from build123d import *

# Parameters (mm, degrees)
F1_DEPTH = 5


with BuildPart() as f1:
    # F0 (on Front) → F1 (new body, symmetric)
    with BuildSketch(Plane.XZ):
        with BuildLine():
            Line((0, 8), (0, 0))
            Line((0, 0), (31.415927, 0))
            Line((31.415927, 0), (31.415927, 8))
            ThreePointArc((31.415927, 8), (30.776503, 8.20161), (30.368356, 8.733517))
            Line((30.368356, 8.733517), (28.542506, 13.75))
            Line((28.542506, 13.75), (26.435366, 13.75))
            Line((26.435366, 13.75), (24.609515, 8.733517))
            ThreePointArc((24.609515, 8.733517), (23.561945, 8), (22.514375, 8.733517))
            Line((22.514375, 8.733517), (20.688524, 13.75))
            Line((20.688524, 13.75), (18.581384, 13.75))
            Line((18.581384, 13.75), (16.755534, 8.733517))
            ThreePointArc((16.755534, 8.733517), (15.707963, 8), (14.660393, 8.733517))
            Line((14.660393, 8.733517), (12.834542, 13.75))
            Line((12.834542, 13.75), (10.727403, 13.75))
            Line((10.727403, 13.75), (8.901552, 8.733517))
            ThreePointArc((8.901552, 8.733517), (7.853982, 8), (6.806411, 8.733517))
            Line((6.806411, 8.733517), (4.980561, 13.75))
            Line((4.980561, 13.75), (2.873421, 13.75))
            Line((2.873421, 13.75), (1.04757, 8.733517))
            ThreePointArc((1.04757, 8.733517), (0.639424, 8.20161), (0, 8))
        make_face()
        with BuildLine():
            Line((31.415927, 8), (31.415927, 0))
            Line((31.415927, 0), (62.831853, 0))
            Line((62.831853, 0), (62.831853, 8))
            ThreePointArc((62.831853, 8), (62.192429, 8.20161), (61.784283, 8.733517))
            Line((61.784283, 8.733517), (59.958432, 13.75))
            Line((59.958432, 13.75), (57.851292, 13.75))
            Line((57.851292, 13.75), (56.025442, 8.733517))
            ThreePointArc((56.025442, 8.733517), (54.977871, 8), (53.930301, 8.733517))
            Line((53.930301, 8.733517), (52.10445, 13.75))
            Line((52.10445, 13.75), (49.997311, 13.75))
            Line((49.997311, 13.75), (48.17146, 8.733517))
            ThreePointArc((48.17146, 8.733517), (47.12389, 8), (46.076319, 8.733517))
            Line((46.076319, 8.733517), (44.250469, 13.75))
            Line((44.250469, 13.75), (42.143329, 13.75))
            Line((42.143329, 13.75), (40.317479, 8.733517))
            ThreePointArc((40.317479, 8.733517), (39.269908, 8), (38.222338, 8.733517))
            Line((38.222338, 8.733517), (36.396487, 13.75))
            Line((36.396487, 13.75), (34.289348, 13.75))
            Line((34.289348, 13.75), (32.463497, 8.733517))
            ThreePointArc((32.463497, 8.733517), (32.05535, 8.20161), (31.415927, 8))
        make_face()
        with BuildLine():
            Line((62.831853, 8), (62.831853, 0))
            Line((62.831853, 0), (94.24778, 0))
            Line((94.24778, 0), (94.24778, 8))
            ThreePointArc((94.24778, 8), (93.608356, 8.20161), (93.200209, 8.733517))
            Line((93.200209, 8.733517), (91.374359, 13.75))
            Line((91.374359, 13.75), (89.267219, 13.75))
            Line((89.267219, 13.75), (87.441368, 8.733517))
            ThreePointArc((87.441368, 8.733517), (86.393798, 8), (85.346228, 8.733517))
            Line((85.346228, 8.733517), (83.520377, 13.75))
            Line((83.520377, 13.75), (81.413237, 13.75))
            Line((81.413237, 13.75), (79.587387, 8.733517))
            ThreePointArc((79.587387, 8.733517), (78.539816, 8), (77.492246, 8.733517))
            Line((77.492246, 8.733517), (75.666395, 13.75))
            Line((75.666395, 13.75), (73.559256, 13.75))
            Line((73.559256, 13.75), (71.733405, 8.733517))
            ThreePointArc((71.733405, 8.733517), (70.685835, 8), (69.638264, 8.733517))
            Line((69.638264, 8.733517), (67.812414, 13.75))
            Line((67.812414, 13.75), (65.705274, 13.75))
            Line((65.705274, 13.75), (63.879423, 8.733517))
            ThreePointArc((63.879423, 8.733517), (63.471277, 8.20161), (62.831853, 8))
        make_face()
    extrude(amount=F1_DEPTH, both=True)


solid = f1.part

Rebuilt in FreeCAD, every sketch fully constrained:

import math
import FreeCAD as App
import Part
import Sketcher
from FreeCAD import Vector
Q = App.Units.Quantity

doc = App.newDocument("Part")
body = doc.addObject("PartDesign::Body", "Body")

# Sketch on XZ plane
sketch1 = doc.addObject("Sketcher::SketchObject", "Sketch")
body.addObject(sketch1)
sketch1.AttachmentSupport = (doc.XZ_Plane, [""])
sketch1.MapMode = "FlatFace"
sketch1.addGeometry(Part.LineSegment(Vector(0, 8, 0), Vector(0, 0, 0)), False)
sketch1.addGeometry(Part.LineSegment(Vector(0, 0, 0), Vector(94.24778, 0, 0)), False)
sketch1.addGeometry(Part.LineSegment(Vector(94.24778, 0, 0), Vector(94.24778, 8, 0)), False)
sketch1.addGeometry(Part.ArcOfCircle(Part.Circle(Vector(94.247781, 9.114803, 0), Vector(0, 0, 1), 1.114803), math.radians(-159.999937), math.radians(-90.000055)), False)
sketch1.addGeometry(Part.LineSegment(Vector(93.200209, 8.733517, 0), Vector(91.374359, 13.75, 0)), False)
sketch1.addGeometry(Part.LineSegment(Vector(91.374359, 13.75, 0), Vector(89.267219, 13.75, 0)), False)
sketch1.addGeometry(Part.LineSegment(Vector(89.267219, 13.75, 0), Vector(87.441368, 8.733517, 0)), False)
sketch1.addGeometry(Part.ArcOfCircle(Part.Circle(Vector(86.393798, 9.1148, 0), Vector(0, 0, 1), 1.1148), math.radians(-160.000043), math.radians(-19.999957)), False)
sketch1.addGeometry(Part.LineSegment(Vector(85.346228, 8.733517, 0), Vector(83.520377, 13.75, 0)), False)
sketch1.addGeometry(Part.LineSegment(Vector(83.520377, 13.75, 0), Vector(81.413237, 13.75, 0)), False)
sketch1.addGeometry(Part.LineSegment(Vector(81.413237, 13.75, 0), Vector(79.587387, 8.733517, 0)), False)
sketch1.addGeometry(Part.ArcOfCircle(Part.Circle(Vector(78.539817, 9.114801, 0), Vector(0, 0, 1), 1.114801), math.radians(-160.000018), math.radians(-19.999982)), False)
sketch1.addGeometry(Part.LineSegment(Vector(77.492246, 8.733517, 0), Vector(75.666395, 13.75, 0)), False)
sketch1.addGeometry(Part.LineSegment(Vector(75.666395, 13.75, 0), Vector(73.559256, 13.75, 0)), False)
sketch1.addGeometry(Part.LineSegment(Vector(73.559256, 13.75, 0), Vector(71.733405, 8.733517, 0)), False)
sketch1.addGeometry(Part.ArcOfCircle(Part.Circle(Vector(70.685834, 9.114801, 0), Vector(0, 0, 1), 1.114801), math.radians(-160.000018), math.radians(-19.999982)), False)
sketch1.addGeometry(Part.LineSegment(Vector(69.638264, 8.733517, 0), Vector(67.812414, 13.75, 0)), False)
sketch1.addGeometry(Part.LineSegment(Vector(67.812414, 13.75, 0), Vector(65.705274, 13.75, 0)), False)
sketch1.addGeometry(Part.LineSegment(Vector(65.705274, 13.75, 0), Vector(63.879423, 8.733517, 0)), False)
sketch1.addGeometry(Part.ArcOfCircle(Part.Circle(Vector(62.831853, 9.114801, 0), Vector(0, 0, 1), 1.114801), math.radians(-89.999987), math.radians(-19.999969)), False)
sketch1.addGeometry(Part.ArcOfCircle(Part.Circle(Vector(62.831853, 9.114801, 0), Vector(0, 0, 1), 1.114801), math.radians(-160.000031), math.radians(-90.000013)), False)
sketch1.addGeometry(Part.LineSegment(Vector(61.784283, 8.733517, 0), Vector(59.958432, 13.75, 0)), False)
sketch1.addGeometry(Part.LineSegment(Vector(59.958432, 13.75, 0), Vector(57.851292, 13.75, 0)), False)
sketch1.addGeometry(Part.LineSegment(Vector(57.851292, 13.75, 0), Vector(56.025442, 8.733517, 0)), False)
sketch1.addGeometry(Part.ArcOfCircle(Part.Circle(Vector(54.977871, 9.114801, 0), Vector(0, 0, 1), 1.114801), math.radians(-160.000018), math.radians(-19.999982)), False)
sketch1.addGeometry(Part.LineSegment(Vector(53.930301, 8.733517, 0), Vector(52.10445, 13.75, 0)), False)
sketch1.addGeometry(Part.LineSegment(Vector(52.10445, 13.75, 0), Vector(49.997311, 13.75, 0)), False)
sketch1.addGeometry(Part.LineSegment(Vector(49.997311, 13.75, 0), Vector(48.17146, 8.733517, 0)), False)
sketch1.addGeometry(Part.ArcOfCircle(Part.Circle(Vector(47.123889, 9.114801, 0), Vector(0, 0, 1), 1.114801), math.radians(-160.000018), math.radians(-19.999982)), False)
sketch1.addGeometry(Part.LineSegment(Vector(46.076319, 8.733517, 0), Vector(44.250469, 13.75, 0)), False)
sketch1.addGeometry(Part.LineSegment(Vector(44.250469, 13.75, 0), Vector(42.143329, 13.75, 0)), False)
sketch1.addGeometry(Part.LineSegment(Vector(42.143329, 13.75, 0), Vector(40.317479, 8.733517, 0)), False)
sketch1.addGeometry(Part.ArcOfCircle(Part.Circle(Vector(39.269908, 9.114801, 0), Vector(0, 0, 1), 1.114801), math.radians(-160.000018), math.radians(-19.999982)), False)
sketch1.addGeometry(Part.LineSegment(Vector(38.222338, 8.733517, 0), Vector(36.396487, 13.75, 0)), False)
sketch1.addGeometry(Part.LineSegment(Vector(36.396487, 13.75, 0), Vector(34.289348, 13.75, 0)), False)
sketch1.addGeometry(Part.LineSegment(Vector(34.289348, 13.75, 0), Vector(32.463497, 8.733517, 0)), False)
sketch1.addGeometry(Part.ArcOfCircle(Part.Circle(Vector(31.415925, 9.114803, 0), Vector(0, 0, 1), 1.114803), math.radians(-89.999894), math.radians(-20.000063)), False)
sketch1.addGeometry(Part.ArcOfCircle(Part.Circle(Vector(31.415928, 9.114803, 0), Vector(0, 0, 1), 1.114803), math.radians(-159.999937), math.radians(-90.000055)), False)
sketch1.addGeometry(Part.LineSegment(Vector(30.368356, 8.733517, 0), Vector(28.542506, 13.75, 0)), False)
sketch1.addGeometry(Part.LineSegment(Vector(28.542506, 13.75, 0), Vector(26.435366, 13.75, 0)), False)
sketch1.addGeometry(Part.LineSegment(Vector(26.435366, 13.75, 0), Vector(24.609515, 8.733517, 0)), False)
sketch1.addGeometry(Part.ArcOfCircle(Part.Circle(Vector(23.561945, 9.1148, 0), Vector(0, 0, 1), 1.1148), math.radians(-160.000043), math.radians(-19.999957)), False)
sketch1.addGeometry(Part.LineSegment(Vector(22.514375, 8.733517, 0), Vector(20.688524, 13.75, 0)), False)
sketch1.addGeometry(Part.LineSegment(Vector(20.688524, 13.75, 0), Vector(18.581384, 13.75, 0)), False)
sketch1.addGeometry(Part.LineSegment(Vector(18.581384, 13.75, 0), Vector(16.755534, 8.733517, 0)), False)
sketch1.addGeometry(Part.ArcOfCircle(Part.Circle(Vector(15.707963, 9.114801, 0), Vector(0, 0, 1), 1.114801), math.radians(-160.000018), math.radians(-19.999982)), False)
sketch1.addGeometry(Part.LineSegment(Vector(14.660393, 8.733517, 0), Vector(12.834542, 13.75, 0)), False)
sketch1.addGeometry(Part.LineSegment(Vector(12.834542, 13.75, 0), Vector(10.727403, 13.75, 0)), False)
sketch1.addGeometry(Part.LineSegment(Vector(10.727403, 13.75, 0), Vector(8.901552, 8.733517, 0)), False)
sketch1.addGeometry(Part.ArcOfCircle(Part.Circle(Vector(7.853981, 9.114801, 0), Vector(0, 0, 1), 1.114801), math.radians(-160.000018), math.radians(-19.999982)), False)
sketch1.addGeometry(Part.LineSegment(Vector(6.806411, 8.733517, 0), Vector(4.980561, 13.75, 0)), False)
sketch1.addGeometry(Part.LineSegment(Vector(4.980561, 13.75, 0), Vector(2.873421, 13.75, 0)), False)
sketch1.addGeometry(Part.LineSegment(Vector(2.873421, 13.75, 0), Vector(1.04757, 8.733517, 0)), False)
sketch1.addGeometry(Part.ArcOfCircle(Part.Circle(Vector(0, 9.114801, 0), Vector(0, 0, 1), 1.114801), math.radians(-89.999987), math.radians(-19.999969)), False)
sketch1.addConstraint(Sketcher.Constraint("Coincident", 0, 2, 1, 1))
sketch1.addConstraint(Sketcher.Constraint("Coincident", 1, 2, 2, 1))
sketch1.addConstraint(Sketcher.Constraint("Coincident", 2, 2, 3, 2))
sketch1.addConstraint(Sketcher.Constraint("Tangent", 3, 1, 4, 1))
sketch1.addConstraint(Sketcher.Constraint("Coincident", 4, 2, 5, 1))
sketch1.addConstraint(Sketcher.Constraint("Coincident", 5, 2, 6, 1))
sketch1.addConstraint(Sketcher.Constraint("Tangent", 6, 2, 7, 2))
sketch1.addConstraint(Sketcher.Constraint("Tangent", 7, 1, 8, 1))
sketch1.addConstraint(Sketcher.Constraint("Coincident", 8, 2, 9, 1))
sketch1.addConstraint(Sketcher.Constraint("Coincident", 9, 2, 10, 1))
sketch1.addConstraint(Sketcher.Constraint("Tangent", 10, 2, 11, 2))
sketch1.addConstraint(Sketcher.Constraint("Tangent", 11, 1, 12, 1))
sketch1.addConstraint(Sketcher.Constraint("Coincident", 12, 2, 13, 1))
sketch1.addConstraint(Sketcher.Constraint("Coincident", 13, 2, 14, 1))
sketch1.addConstraint(Sketcher.Constraint("Tangent", 14, 2, 15, 2))
sketch1.addConstraint(Sketcher.Constraint("Tangent", 15, 1, 16, 1))
sketch1.addConstraint(Sketcher.Constraint("Coincident", 16, 2, 17, 1))
sketch1.addConstraint(Sketcher.Constraint("Coincident", 17, 2, 18, 1))
sketch1.addConstraint(Sketcher.Constraint("Tangent", 18, 2, 19, 2))
sketch1.addConstraint(Sketcher.Constraint("Tangent", 19, 1, 20, 2))
sketch1.addConstraint(Sketcher.Constraint("Tangent", 20, 1, 21, 1))
sketch1.addConstraint(Sketcher.Constraint("Coincident", 21, 2, 22, 1))
sketch1.addConstraint(Sketcher.Constraint("Coincident", 22, 2, 23, 1))
sketch1.addConstraint(Sketcher.Constraint("Tangent", 23, 2, 24, 2))
sketch1.addConstraint(Sketcher.Constraint("Tangent", 24, 1, 25, 1))
sketch1.addConstraint(Sketcher.Constraint("Coincident", 25, 2, 26, 1))
sketch1.addConstraint(Sketcher.Constraint("Coincident", 26, 2, 27, 1))
sketch1.addConstraint(Sketcher.Constraint("Tangent", 27, 2, 28, 2))
sketch1.addConstraint(Sketcher.Constraint("Tangent", 28, 1, 29, 1))
sketch1.addConstraint(Sketcher.Constraint("Coincident", 29, 2, 30, 1))
sketch1.addConstraint(Sketcher.Constraint("Coincident", 30, 2, 31, 1))
sketch1.addConstraint(Sketcher.Constraint("Tangent", 31, 2, 32, 2))
sketch1.addConstraint(Sketcher.Constraint("Tangent", 32, 1, 33, 1))
sketch1.addConstraint(Sketcher.Constraint("Coincident", 33, 2, 34, 1))
sketch1.addConstraint(Sketcher.Constraint("Coincident", 34, 2, 35, 1))
sketch1.addConstraint(Sketcher.Constraint("Tangent", 35, 2, 36, 2))
sketch1.addConstraint(Sketcher.Constraint("Coincident", 36, 1, 37, 2))
sketch1.addConstraint(Sketcher.Constraint("Tangent", 37, 1, 38, 1))
sketch1.addConstraint(Sketcher.Constraint("Coincident", 38, 2, 39, 1))
sketch1.addConstraint(Sketcher.Constraint("Coincident", 39, 2, 40, 1))
sketch1.addConstraint(Sketcher.Constraint("Tangent", 40, 2, 41, 2))
sketch1.addConstraint(Sketcher.Constraint("Tangent", 41, 1, 42, 1))
sketch1.addConstraint(Sketcher.Constraint("Coincident", 42, 2, 43, 1))
sketch1.addConstraint(Sketcher.Constraint("Coincident", 43, 2, 44, 1))
sketch1.addConstraint(Sketcher.Constraint("Tangent", 44, 2, 45, 2))
sketch1.addConstraint(Sketcher.Constraint("Tangent", 45, 1, 46, 1))
sketch1.addConstraint(Sketcher.Constraint("Coincident", 46, 2, 47, 1))
sketch1.addConstraint(Sketcher.Constraint("Coincident", 47, 2, 48, 1))
sketch1.addConstraint(Sketcher.Constraint("Tangent", 48, 2, 49, 2))
sketch1.addConstraint(Sketcher.Constraint("Tangent", 49, 1, 50, 1))
sketch1.addConstraint(Sketcher.Constraint("Coincident", 50, 2, 51, 1))
sketch1.addConstraint(Sketcher.Constraint("Coincident", 51, 2, 52, 1))
sketch1.addConstraint(Sketcher.Constraint("Tangent", 52, 2, 53, 2))
sketch1.addConstraint(Sketcher.Constraint("Coincident", 53, 1, 0, 1))
sketch1.addConstraint(Sketcher.Constraint("Vertical", 0))
sketch1.addConstraint(Sketcher.Constraint("Horizontal", 1))
sketch1.addConstraint(Sketcher.Constraint("Vertical", 2))
sketch1.addConstraint(Sketcher.Constraint("Horizontal", 5))
sketch1.addConstraint(Sketcher.Constraint("Horizontal", 9))
sketch1.addConstraint(Sketcher.Constraint("Horizontal", 13))
sketch1.addConstraint(Sketcher.Constraint("Horizontal", 17))
sketch1.addConstraint(Sketcher.Constraint("Horizontal", 22))
sketch1.addConstraint(Sketcher.Constraint("Horizontal", 26))
sketch1.addConstraint(Sketcher.Constraint("Horizontal", 30))
sketch1.addConstraint(Sketcher.Constraint("Horizontal", 34))
sketch1.addConstraint(Sketcher.Constraint("Horizontal", 39))
sketch1.addConstraint(Sketcher.Constraint("Horizontal", 43))
sketch1.addConstraint(Sketcher.Constraint("Horizontal", 47))
sketch1.addConstraint(Sketcher.Constraint("Horizontal", 51))
sketch1.addConstraint(Sketcher.Constraint("Coincident", 0, 2, -1, 1))
sketch1.addConstraint(Sketcher.Constraint("Coincident", 37, 3, 36, 3))
sketch1.addConstraint(Sketcher.Constraint("Equal", 7, 11))
sketch1.addConstraint(Sketcher.Constraint("Equal", 11, 15))
sketch1.addConstraint(Sketcher.Constraint("Equal", 15, 19))
sketch1.addConstraint(Sketcher.Constraint("Equal", 19, 20))
sketch1.addConstraint(Sketcher.Constraint("Equal", 20, 24))
sketch1.addConstraint(Sketcher.Constraint("Equal", 24, 28))
sketch1.addConstraint(Sketcher.Constraint("Equal", 28, 32))
sketch1.addConstraint(Sketcher.Constraint("Equal", 3, 36))
sketch1.addConstraint(Sketcher.Constraint("Equal", 32, 41))
sketch1.addConstraint(Sketcher.Constraint("Equal", 41, 45))
sketch1.addConstraint(Sketcher.Constraint("Equal", 45, 49))
sketch1.addConstraint(Sketcher.Constraint("Equal", 49, 53))
sketch1.addConstraint(Sketcher.Constraint("PointOnObject", 53, 3, -2))
sketch1.addConstraint(Sketcher.Constraint("Parallel", 4, 8))
sketch1.addConstraint(Sketcher.Constraint("Parallel", 6, 10))
sketch1.addConstraint(Sketcher.Constraint("Parallel", 8, 12))
sketch1.addConstraint(Sketcher.Constraint("Parallel", 10, 14))
sketch1.addConstraint(Sketcher.Constraint("Parallel", 12, 16))
sketch1.addConstraint(Sketcher.Constraint("Parallel", 14, 18))
sketch1.addConstraint(Sketcher.Constraint("Parallel", 16, 21))
sketch1.addConstraint(Sketcher.Constraint("Parallel", 18, 23))
sketch1.addConstraint(Sketcher.Constraint("Parallel", 21, 25))
sketch1.addConstraint(Sketcher.Constraint("Parallel", 23, 27))
sketch1.addConstraint(Sketcher.Constraint("Parallel", 25, 29))
sketch1.addConstraint(Sketcher.Constraint("Parallel", 27, 31))
sketch1.addConstraint(Sketcher.Constraint("Parallel", 29, 33))
sketch1.addConstraint(Sketcher.Constraint("Parallel", 31, 35))
sketch1.addConstraint(Sketcher.Constraint("Parallel", 33, 38))
sketch1.addConstraint(Sketcher.Constraint("Parallel", 35, 40))
sketch1.addConstraint(Sketcher.Constraint("Parallel", 38, 42))
sketch1.addConstraint(Sketcher.Constraint("Parallel", 40, 44))
sketch1.addConstraint(Sketcher.Constraint("Parallel", 42, 46))
sketch1.addConstraint(Sketcher.Constraint("Parallel", 44, 48))
sketch1.addConstraint(Sketcher.Constraint("Parallel", 46, 50))
sketch1.addConstraint(Sketcher.Constraint("Parallel", 48, 52))
sketch1.addConstraint(Sketcher.Constraint("Horizontal", 7, 3, 11, 3))
sketch1.addConstraint(Sketcher.Constraint("Horizontal", 11, 3, 15, 3))
sketch1.addConstraint(Sketcher.Constraint("Horizontal", 15, 3, 19, 3))
sketch1.addConstraint(Sketcher.Constraint("Horizontal", 20, 3, 24, 3))
sketch1.addConstraint(Sketcher.Constraint("Horizontal", 24, 3, 28, 3))
sketch1.addConstraint(Sketcher.Constraint("Horizontal", 28, 3, 32, 3))
sketch1.addConstraint(Sketcher.Constraint("Horizontal", 3, 3, 36, 3))
sketch1.addConstraint(Sketcher.Constraint("Horizontal", 32, 3, 41, 3))
sketch1.addConstraint(Sketcher.Constraint("Horizontal", 41, 3, 45, 3))
sketch1.addConstraint(Sketcher.Constraint("Horizontal", 45, 3, 49, 3))
sketch1.addConstraint(Sketcher.Constraint("Horizontal", 49, 3, 53, 3))
sketch1.addConstraint(Sketcher.Constraint("Horizontal", 3, 1, 6, 2))
sketch1.addConstraint(Sketcher.Constraint("Horizontal", 6, 2, 7, 1))
sketch1.addConstraint(Sketcher.Constraint("Horizontal", 5, 2, 8, 2))
sketch1.addConstraint(Sketcher.Constraint("Horizontal", 9, 2, 12, 2))
sketch1.addConstraint(Sketcher.Constraint("Horizontal", 13, 2, 16, 2))
sketch1.addConstraint(Sketcher.Constraint("Horizontal", 2, 2, 19, 1))
sketch1.addConstraint(Sketcher.Constraint("Horizontal", 17, 2, 21, 2))
sketch1.addConstraint(Sketcher.Constraint("Horizontal", 22, 2, 25, 2))
sketch1.addConstraint(Sketcher.Constraint("Horizontal", 26, 2, 29, 2))
sketch1.addConstraint(Sketcher.Constraint("Horizontal", 30, 2, 33, 2))
sketch1.addConstraint(Sketcher.Constraint("Horizontal", 34, 2, 38, 2))
sketch1.addConstraint(Sketcher.Constraint("Horizontal", 39, 2, 42, 2))
sketch1.addConstraint(Sketcher.Constraint("Horizontal", 43, 2, 46, 2))
sketch1.addConstraint(Sketcher.Constraint("Horizontal", 47, 2, 50, 2))
sketch1.addConstraint(Sketcher.Constraint("Vertical", 3, 3, 1, 2))
sketch1.addConstraint(Sketcher.Constraint("Vertical", 20, 3, 19, 1))
sketch1.addConstraint(Sketcher.Constraint("Vertical", 37, 3, 36, 1))
sketch1.addConstraint(Sketcher.Constraint("Equal", 5, 9))
sketch1.addConstraint(Sketcher.Constraint("Equal", 9, 13))
sketch1.addConstraint(Sketcher.Constraint("Equal", 13, 17))
sketch1.addConstraint(Sketcher.Constraint("Equal", 17, 22))
sketch1.addConstraint(Sketcher.Constraint("Equal", 22, 26))
sketch1.addConstraint(Sketcher.Constraint("Equal", 26, 30))
sketch1.addConstraint(Sketcher.Constraint("Equal", 30, 34))
sketch1.addConstraint(Sketcher.Constraint("Equal", 34, 39))
sketch1.addConstraint(Sketcher.Constraint("Equal", 39, 43))
sketch1.addConstraint(Sketcher.Constraint("Equal", 43, 47))
sketch1.addConstraint(Sketcher.Constraint("Equal", 47, 51))
sketch1.addConstraint(Sketcher.Constraint("DistanceY", 0, 2, 0, 1, Q("8 mm")))
sketch1.addConstraint(Sketcher.Constraint("Angle", 4, Q("109.999995 deg")))
sketch1.addConstraint(Sketcher.Constraint("Radius", 7, Q("1.1148 mm")))
sketch1.addConstraint(Sketcher.Constraint("DistanceY", -1, 1, 4, 2, Q("13.75 mm")))
sketch1.addConstraint(Sketcher.Constraint("DistanceX", 1, 1, 1, 2, Q("94.24778 mm")))
pad1 = doc.addObject("PartDesign::Pad", "Pad")
body.addObject(pad1)
pad1.Profile = sketch1
pad1.Length = 10
pad1.Midplane = True

doc.recompute()
